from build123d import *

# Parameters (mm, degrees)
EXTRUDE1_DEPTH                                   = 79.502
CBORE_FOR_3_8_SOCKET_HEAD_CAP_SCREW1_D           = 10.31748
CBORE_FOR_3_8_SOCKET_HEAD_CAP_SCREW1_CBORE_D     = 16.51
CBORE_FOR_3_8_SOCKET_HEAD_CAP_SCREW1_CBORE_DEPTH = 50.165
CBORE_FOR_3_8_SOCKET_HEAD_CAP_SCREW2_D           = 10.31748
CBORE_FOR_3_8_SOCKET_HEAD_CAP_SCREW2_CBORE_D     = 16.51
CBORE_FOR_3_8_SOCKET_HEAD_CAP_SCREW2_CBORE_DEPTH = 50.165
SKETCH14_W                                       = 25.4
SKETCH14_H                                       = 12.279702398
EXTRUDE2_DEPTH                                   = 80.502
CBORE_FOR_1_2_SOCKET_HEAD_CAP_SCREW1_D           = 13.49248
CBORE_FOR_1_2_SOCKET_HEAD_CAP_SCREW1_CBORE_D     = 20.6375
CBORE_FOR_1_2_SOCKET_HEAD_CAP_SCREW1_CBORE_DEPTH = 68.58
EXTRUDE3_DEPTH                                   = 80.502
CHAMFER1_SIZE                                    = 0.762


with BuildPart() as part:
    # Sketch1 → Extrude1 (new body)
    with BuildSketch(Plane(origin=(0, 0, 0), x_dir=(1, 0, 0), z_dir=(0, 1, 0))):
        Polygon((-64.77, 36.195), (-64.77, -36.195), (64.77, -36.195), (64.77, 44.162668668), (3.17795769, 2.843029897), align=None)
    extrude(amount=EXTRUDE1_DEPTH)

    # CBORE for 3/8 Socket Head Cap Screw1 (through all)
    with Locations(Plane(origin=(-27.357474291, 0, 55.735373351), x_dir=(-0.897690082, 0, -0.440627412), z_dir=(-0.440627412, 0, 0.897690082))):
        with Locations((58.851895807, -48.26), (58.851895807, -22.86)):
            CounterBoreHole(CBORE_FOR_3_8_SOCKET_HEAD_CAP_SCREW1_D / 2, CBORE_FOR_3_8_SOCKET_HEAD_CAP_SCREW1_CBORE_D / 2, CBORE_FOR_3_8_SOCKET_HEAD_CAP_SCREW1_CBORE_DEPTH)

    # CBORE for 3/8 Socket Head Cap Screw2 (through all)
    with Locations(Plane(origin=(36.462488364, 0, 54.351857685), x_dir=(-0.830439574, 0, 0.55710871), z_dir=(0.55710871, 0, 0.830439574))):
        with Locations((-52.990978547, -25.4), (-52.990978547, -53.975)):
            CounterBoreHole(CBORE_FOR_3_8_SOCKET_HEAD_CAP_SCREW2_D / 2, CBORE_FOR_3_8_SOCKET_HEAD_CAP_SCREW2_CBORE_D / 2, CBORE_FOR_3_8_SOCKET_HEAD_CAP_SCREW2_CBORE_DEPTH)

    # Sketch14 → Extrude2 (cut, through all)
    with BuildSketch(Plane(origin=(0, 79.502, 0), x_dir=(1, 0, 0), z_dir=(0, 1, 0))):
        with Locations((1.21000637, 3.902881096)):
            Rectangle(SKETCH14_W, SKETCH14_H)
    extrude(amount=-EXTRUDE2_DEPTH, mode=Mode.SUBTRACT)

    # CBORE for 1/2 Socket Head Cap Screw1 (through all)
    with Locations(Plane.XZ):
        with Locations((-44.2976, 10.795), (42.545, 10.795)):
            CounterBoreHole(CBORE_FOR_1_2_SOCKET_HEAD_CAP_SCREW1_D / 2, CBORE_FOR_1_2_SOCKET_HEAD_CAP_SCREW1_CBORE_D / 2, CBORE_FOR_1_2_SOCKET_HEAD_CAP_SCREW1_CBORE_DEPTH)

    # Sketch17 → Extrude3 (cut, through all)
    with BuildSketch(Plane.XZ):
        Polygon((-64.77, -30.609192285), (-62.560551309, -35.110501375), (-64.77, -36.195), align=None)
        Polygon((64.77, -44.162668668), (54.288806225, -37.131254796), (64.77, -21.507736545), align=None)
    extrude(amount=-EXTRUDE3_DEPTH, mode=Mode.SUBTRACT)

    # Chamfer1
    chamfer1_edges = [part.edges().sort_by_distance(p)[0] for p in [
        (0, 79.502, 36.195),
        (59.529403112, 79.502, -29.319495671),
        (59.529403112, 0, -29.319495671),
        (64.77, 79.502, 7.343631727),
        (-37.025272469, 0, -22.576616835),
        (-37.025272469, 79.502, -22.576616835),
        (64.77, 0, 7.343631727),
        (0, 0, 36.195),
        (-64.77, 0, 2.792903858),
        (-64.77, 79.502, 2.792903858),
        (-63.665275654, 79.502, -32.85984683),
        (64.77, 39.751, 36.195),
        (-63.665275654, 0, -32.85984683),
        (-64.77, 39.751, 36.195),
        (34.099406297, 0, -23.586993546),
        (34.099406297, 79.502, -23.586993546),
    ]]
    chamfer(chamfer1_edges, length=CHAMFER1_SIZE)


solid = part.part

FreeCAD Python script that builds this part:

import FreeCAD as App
import Part
import Sketcher
from FreeCAD import Vector
Q = App.Units.Quantity


def edges_at(feature, points):
    """Names of the edges that pass closest to the given points."""
    edges = feature.Shape.Edges
    near = lambda p: min(range(len(edges)), key=lambda i: edges[i].distToShape(Part.Vertex(*p))[0])
    return sorted({f"Edge{near(p) + 1}" for p in points})


def add_polygon(sketch, points):
    """Adds a closed chain of lines whose ends are joined by coincident constraints."""
    first, n = sketch.GeometryCount, len(points)
    for a, b in zip(points, points[1:] + points[:1]):
        sketch.addGeometry(Part.LineSegment(App.Vector(*a, 0), App.Vector(*b, 0)), False)
    for i in range(n):
        sketch.addConstraint(Sketcher.Constraint("Coincident", first + i, 2, first + (i + 1) % n, 1))

doc = App.newDocument("Part")
params = doc.addObject("Spreadsheet::Sheet", "Params")
for row, (alias, value) in enumerate([
    ("sketch1_width", "5.1 in"),
    ("sketch1_height", "2.85 in"),
    ("sketch1_length", "2.92 in"),
    ("sketch1_length2", "2.98 in"),
    ("pad1_length", "3.13 in"),
    ("hole_diameter", "0.4062 in"),
    ("hole_cbore_diameter", "0.65 in"),
    ("hole_cbore_depth", "1.975 in"),
    ("hole2_diameter", "0.4062 in"),
    ("hole2_cbore_diameter", "0.65 in"),
    ("hole2_cbore_depth", "1.975 in"),
    ("sketch4_width", "1 in"),
    ("hole3_diameter", "0.5312 in"),
    ("hole3_cbore_diameter", "0.8125 in"),
    ("hole3_cbore_depth", "2.7 in"),
    ("chamfer_size", "0.03 in"),
], start=1):
    params.set(f"A{row}", alias)
    params.set(f"B{row}", "=" + value)
    params.setAlias(f"B{row}", alias)

body = doc.addObject("PartDesign::Body", "Body")

# Sketch on XZ plane
sketch1 = doc.addObject("Sketcher::SketchObject", "Sketch")
body.addObject(sketch1)
sketch1.AttachmentSupport = (doc.XZ_Plane, [""])
sketch1.MapMode = "FlatFace"
add_polygon(sketch1, [(-65, -36), (-65, 36), (65, 36), (65, -44), (3, -3)])  # lines 0-4
sketch1.addConstraint(Sketcher.Constraint("Vertical", 0))
sketch1.addConstraint(Sketcher.Constraint("Horizontal", 1))
sketch1.addConstraint(Sketcher.Constraint("Vertical", 2))
sketch1.addConstraint(Sketcher.Constraint("Symmetric", 1, 2, 4, 2, -1, 1))
sketch1.addConstraint(Sketcher.Constraint("DistanceX", 1, 1, 1, 2, Q("5.1 in")))
sketch1.addConstraint(Sketcher.Constraint("DistanceY", 0, 1, 0, 2, Q("2.85 in")))
sketch1.addConstraint(Sketcher.Constraint("Distance", 3, Q("2.92 in")))
sketch1.addConstraint(Sketcher.Constraint("Distance", 4, Q("2.98 in")))
sketch1.addConstraint(Sketcher.Constraint("DistanceY", 2, 2, 2, 1, 80.357669))
sketch1.setExpression("Constraints[9]", "Params.sketch1_width")
sketch1.setExpression("Constraints[10]", "Params.sketch1_height")
sketch1.setExpression("Constraints[11]", "Params.sketch1_length")
sketch1.setExpression("Constraints[12]", "Params.sketch1_length2")
pad1 = doc.addObject("PartDesign::Pad", "Pad")
body.addObject(pad1)
pad1.Profile = sketch1
pad1.setExpression("Length", "Params.pad1_length")
pad1.Reversed = True

# Sketch on an angled plane
sketch2 = doc.addObject("Sketcher::SketchObject", "Sketch001")
body.addObject(sketch2)
sketch2.Placement = App.Placement(Vector(-27.357474, 0, 55.735373), App.Rotation(Vector(-0.897690082, 0, -0.440627412), Vector(0, -1, 0), Vector(-0.440627412, 0, 0.897690082), "ZXY"))
sketch2.addGeometry(Part.Circle(Vector(59, -48, 0), Vector(0, 0, 1), 5), False)
sketch2.addGeometry(Part.Circle(Vector(59, -23, 0), Vector(0, 0, 1), 5), False)
sketch2.addConstraint(Sketcher.Constraint("Equal", 0, 1))
sketch2.addConstraint(Sketcher.Constraint("Vertical", 0, 3, 1, 3))
sketch2.addConstraint(Sketcher.Constraint("DistanceY", 0, 3, 1, 3, Q("1 in")))
sketch2.addConstraint(Sketcher.Constraint("Diameter", 0, Q("0.4062 in")))
sketch2.addConstraint(Sketcher.Constraint("DistanceY", 0, 3, -1, 1, Q("1.9 in")))
sketch2.addConstraint(Sketcher.Constraint("DistanceX", -1, 1, 0, 3, 58.851896))
doc.recompute()
hole = doc.addObject("PartDesign::Hole", "Hole")
body.addObject(hole)
hole.Profile = sketch2
hole.ThreadType = "None"
hole.setExpression("Diameter", "Params.hole_diameter")
hole.DepthType = "ThroughAll"
hole.HoleCutType = "Counterbore"
hole.setExpression("HoleCutDiameter", "Params.hole_cbore_diameter")
hole.setExpression("HoleCutDepth", "Params.hole_cbore_depth")

# Sketch on an angled plane
sketch3 = doc.addObject("Sketcher::SketchObject", "Sketch002")
body.addObject(sketch3)
sketch3.Placement = App.Placement(Vector(36.462488, 0, 54.351858), App.Rotation(Vector(-0.830439574, 0, 0.55710871), Vector(0, -1.000000001, 0), Vector(0.55710871, 0, 0.830439574), "ZXY"))
sketch3.addGeometry(Part.Circle(Vector(-53, -25, 0), Vector(0, 0, 1), 5), False)
sketch3.addGeometry(Part.Circle(Vector(-53, -54, 0), Vector(0, 0, 1), 5), False)
sketch3.addConstraint(Sketcher.Constraint("Equal", 0, 1))
sketch3.addConstraint(Sketcher.Constraint("Vertical", 0, 3, 1, 3))
sketch3.addConstraint(Sketcher.Constraint("DistanceY", 0, 3, -1, 1, Q("1 in")))
sketch3.addConstraint(Sketcher.Constraint("Diameter", 0, Q("0.4062 in")))
sketch3.addConstraint(Sketcher.Constraint("DistanceY", 1, 3, -1, 1, Q("2.125 in")))
sketch3.addConstraint(Sketcher.Constraint("DistanceX", 0, 3, -1, 1, 52.990979))
doc.recompute()
hole2 = doc.addObject("PartDesign::Hole", "Hole001")
body.addObject(hole2)
hole2.Profile = sketch3
hole2.ThreadType = "None"
hole2.setExpression("Diameter", "Params.hole2_diameter")
hole2.DepthType = "ThroughAll"
hole2.HoleCutType = "Counterbore"
hole2.setExpression("HoleCutDiameter", "Params.hole2_cbore_diameter")
hole2.setExpression("HoleCutDepth", "Params.hole2_cbore_depth")

# Sketch on XZ plane
sketch4 = doc.addObject("Sketcher::SketchObject", "Sketch003")
body.addObject(sketch4)
sketch4.AttachmentSupport = (doc.XZ_Plane, [""])
sketch4.MapMode = "FlatFace"
sketch4.AttachmentOffset = App.Placement(Vector(0, 0, -3.13 * 25.4), App.Rotation())
add_polygon(sketch4, [(-11, -10), (-11, 2), (14, 2), (14, -10)])  # lines 0-3
sketch4.addConstraint(Sketcher.Constraint("Vertical", 0))
sketch4.addConstraint(Sketcher.Constraint("Horizontal", 1))
sketch4.addConstraint(Sketcher.Constraint("Vertical", 2))
sketch4.addConstraint(Sketcher.Constraint("Horizontal", 3))
sketch4.addConstraint(Sketcher.Constraint("DistanceX", 1, 1, 1, 2, Q("1 in")))
sketch4.addConstraint(Sketcher.Constraint("DistanceY", 0, 1, 0, 2, 12.279702))
sketch4.addConstraint(Sketcher.Constraint("DistanceY", -1, 1, 0, 2, 2.23697))
sketch4.addConstraint(Sketcher.Constraint("DistanceX", 0, 2, -1, 1, 11.489994))
sketch4.setExpression("Constraints[8]", "Params.sketch4_width")
pocket1 = doc.addObject("PartDesign::Pocket", "Pocket")
body.addObject(pocket1)
pocket1.Profile = sketch4
pocket1.Type = "ThroughAll"
pocket1.Reversed = True

# Sketch on XZ plane
sketch5 = doc.addObject("Sketcher::SketchObject", "Sketch004")
body.addObject(sketch5)
sketch5.AttachmentSupport = (doc.XZ_Plane, [""])
sketch5.MapMode = "FlatFace"
sketch5.addGeometry(Part.Circle(Vector(-44, 11, 0), Vector(0, 0, 1), 7), False)
sketch5.addGeometry(Part.Circle(Vector(43, 11, 0), Vector(0, 0, 1), 7), False)
sketch5.addConstraint(Sketcher.Constraint("Equal", 0, 1))
sketch5.addConstraint(Sketcher.Constraint("Horizontal", 0, 3, 1, 3))
sketch5.addConstraint(Sketcher.Constraint("Diameter", 0, Q("0.5312 in")))
sketch5.addConstraint(Sketcher.Constraint("DistanceX", 0, 3, -1, 1, Q("1.744 in")))
sketch5.addConstraint(Sketcher.Constraint("DistanceY", -1, 1, 0, 3, Q("0.425 in")))
sketch5.addConstraint(Sketcher.Constraint("DistanceX", -1, 1, 1, 3, Q("1.675 in")))
doc.recompute()
hole3 = doc.addObject("PartDesign::Hole", "Hole002")
body.addObject(hole3)
hole3.Profile = sketch5
hole3.ThreadType = "None"
hole3.setExpression("Diameter", "Params.hole3_diameter")
hole3.DepthType = "ThroughAll"
hole3.HoleCutType = "Counterbore"
hole3.setExpression("HoleCutDiameter", "Params.hole3_cbore_diameter")
hole3.setExpression("HoleCutDepth", "Params.hole3_cbore_depth")

# Sketch on XZ plane
sketch6 = doc.addObject("Sketcher::SketchObject", "Sketch005")
body.addObject(sketch6)
sketch6.AttachmentSupport = (doc.XZ_Plane, [""])
sketch6.MapMode = "FlatFace"
add_polygon(sketch6, [(-62.6, -35.1), (-64.8, -30.6), (-64.8, -36.2)])  # lines 0-2
add_polygon(sketch6, [(54.3, -37.1), (64.8, -44.2), (64.8, -21.5)])  # lines 3-5
sketch6.addConstraint(Sketcher.Constraint("Vertical", 1))
sketch6.addConstraint(Sketcher.Constraint("Vertical", 4))
sketch6.addConstraint(Sketcher.Constraint("Perpendicular", 0, 2))
sketch6.addConstraint(Sketcher.Constraint("Perpendicular", 3, 5))
sketch6.addConstraint(Sketcher.Constraint("DistanceX", 1, 2, 3, 2, Q("5.1 in")))
sketch6.addConstraint(Sketcher.Constraint("DistanceX", 0, 2, -1, 1, Q("2.55 in")))
sketch6.addConstraint(Sketcher.Constraint("DistanceY", 1, 2, -1, 1, Q("1.425 in")))
sketch6.addConstraint(Sketcher.Constraint("Distance", 2, Q("0.0969 in")))
sketch6.addConstraint(Sketcher.Constraint("Distance", 3, Q("0.4969 in")))
sketch6.addConstraint(Sketcher.Constraint("DistanceY", 2, 2, -1, 1, 35.110501))
sketch6.addConstraint(Sketcher.Constraint("DistanceY", 4, 1, 4, 2, 22.654932))
sketch6.addConstraint(Sketcher.Constraint("DistanceY", 3, 2, -1, 1, 44.162669))
pocket2 = doc.addObject("PartDesign::Pocket", "Pocket001")
body.addObject(pocket2)
pocket2.Profile = sketch6
pocket2.Type = "ThroughAll"
doc.recompute()

chamfer = doc.addObject("PartDesign::Chamfer", "Chamfer")
body.addObject(chamfer)
chamfer.Base = (pocket2, edges_at(pocket2, [
    (0, 79.502, 36.195),
    (59.529, 79.502, -29.319),
    (59.529, 0, -29.319),
    (64.77, 79.502, 7.344),
    (-37.025, 0, -22.577),
    (-37.025, 79.502, -22.577),
    (64.77, 0, 7.344),
    (0, 0, 36.195),
    (-64.77, 0, 2.793),
    (-64.77, 79.502, 2.793),
    (-63.665, 79.502, -32.86),
    (64.77, 39.751, 36.195),
    (-63.665, 0, -32.86),
    (-64.77, 39.751, 36.195),
    (34.099, 0, -23.587),
    (34.099, 79.502, -23.587),
]))
chamfer.setExpression("Size", "Params.chamfer_size")

doc.recompute()
